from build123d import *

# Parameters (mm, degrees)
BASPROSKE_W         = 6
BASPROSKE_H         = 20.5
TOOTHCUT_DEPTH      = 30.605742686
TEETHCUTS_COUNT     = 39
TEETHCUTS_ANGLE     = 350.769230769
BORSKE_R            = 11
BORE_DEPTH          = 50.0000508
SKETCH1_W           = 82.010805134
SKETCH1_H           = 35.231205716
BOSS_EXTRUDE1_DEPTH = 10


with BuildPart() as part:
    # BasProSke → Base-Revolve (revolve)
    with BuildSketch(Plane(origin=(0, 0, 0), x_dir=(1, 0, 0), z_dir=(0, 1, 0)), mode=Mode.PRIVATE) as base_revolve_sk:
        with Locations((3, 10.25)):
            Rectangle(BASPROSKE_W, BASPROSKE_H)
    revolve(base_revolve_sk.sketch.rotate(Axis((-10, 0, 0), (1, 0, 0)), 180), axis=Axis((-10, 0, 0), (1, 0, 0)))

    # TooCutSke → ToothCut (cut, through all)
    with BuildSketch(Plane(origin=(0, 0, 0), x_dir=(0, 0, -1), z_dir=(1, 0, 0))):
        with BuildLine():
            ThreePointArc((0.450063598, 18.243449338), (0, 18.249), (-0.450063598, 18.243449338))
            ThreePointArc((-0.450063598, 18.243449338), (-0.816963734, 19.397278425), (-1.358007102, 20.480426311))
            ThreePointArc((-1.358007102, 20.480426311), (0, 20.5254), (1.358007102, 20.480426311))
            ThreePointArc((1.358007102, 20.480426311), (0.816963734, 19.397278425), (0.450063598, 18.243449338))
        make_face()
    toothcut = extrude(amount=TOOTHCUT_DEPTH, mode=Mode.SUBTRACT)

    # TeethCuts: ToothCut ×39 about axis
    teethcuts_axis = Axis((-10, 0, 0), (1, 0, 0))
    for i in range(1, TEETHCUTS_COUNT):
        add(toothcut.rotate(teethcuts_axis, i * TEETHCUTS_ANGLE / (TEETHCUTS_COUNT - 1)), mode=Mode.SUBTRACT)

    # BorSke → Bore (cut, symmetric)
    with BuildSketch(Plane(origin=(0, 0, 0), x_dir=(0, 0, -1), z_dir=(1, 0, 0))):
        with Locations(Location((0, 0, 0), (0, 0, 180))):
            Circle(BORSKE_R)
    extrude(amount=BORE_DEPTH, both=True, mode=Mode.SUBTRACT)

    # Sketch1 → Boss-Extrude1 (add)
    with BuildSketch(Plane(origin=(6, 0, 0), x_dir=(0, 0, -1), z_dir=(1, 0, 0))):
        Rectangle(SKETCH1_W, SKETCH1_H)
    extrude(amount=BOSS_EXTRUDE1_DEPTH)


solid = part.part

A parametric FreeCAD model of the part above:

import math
import FreeCAD as App
import Part
import Sketcher

doc = App.newDocument("Part")
params = doc.addObject("Spreadsheet::Sheet", "Params")
for row, (alias, value) in enumerate([
    ("sketch1_width", "6 mm"),
    ("sketch1_height", "20.5 mm"),
    ("revolution_angle", "360 deg"),
    ("sketch2_radius", "7.8 mm"),
    ("sketch3_diameter", "22 mm"),
    ("pocket2_length", "100.000102 mm"),
    ("pad1_length", "10 mm"),
], start=1):
    params.set(f"A{row}", alias)
    params.set(f"B{row}", "=" + value)
    params.setAlias(f"B{row}", alias)

body = doc.addObject("PartDesign::Body", "Body")

# Sketch on XZ plane
sketch1 = body.newObject("Sketcher::SketchObject", "Sketch")
sketch1.AttachmentSupport = (doc.getObject("XZ_Plane"), [""])
sketch1.MapMode = "FlatFace"
sketch1.addGeometry([
    Part.LineSegment(App.Vector(0, -20.5, 0), App.Vector(0, 0, 0)),
    Part.LineSegment(App.Vector(0, 0, 0), App.Vector(6, 0, 0)),
    Part.LineSegment(App.Vector(6, 0, 0), App.Vector(6, -20.5, 0)),
    Part.LineSegment(App.Vector(6, -20.5, 0), App.Vector(0, -20.5, 0)),
], False)
sketch1.addConstraint([
    Sketcher.Constraint("Coincident", 0, 2, 1, 1),
    Sketcher.Constraint("Coincident", 1, 2, 2, 1),
    Sketcher.Constraint("Coincident", 2, 2, 3, 1),
    Sketcher.Constraint("Coincident", 3, 2, 0, 1),
    Sketcher.Constraint("Vertical", 0),
    Sketcher.Constraint("Horizontal", 1),
    Sketcher.Constraint("Vertical", 2),
    Sketcher.Constraint("Horizontal", 3),
    Sketcher.Constraint("Coincident", 0, 2, -1, 1),
    Sketcher.Constraint("DistanceX", 1, 1, 1, 2, 6.0),
    Sketcher.Constraint("DistanceY", 0, 1, 0, 2, 20.5),
])
sketch1.setExpression("Constraints[9]", "Params.sketch1_width")
sketch1.setExpression("Constraints[10]", "Params.sketch1_height")
revolution = body.newObject("PartDesign::Revolution", "Revolution")
revolution.Profile = sketch1
revolution.ReferenceAxis = (sketch1, ["H_Axis"])
revolution.setExpression("Angle", "Params.revolution_angle")

# Sketch on YZ plane
sketch2 = body.newObject("Sketcher::SketchObject", "Sketch001")
sketch2.AttachmentSupport = (doc.getObject("YZ_Plane"), [""])
sketch2.MapMode = "FlatFace"
sketch2.addGeometry([
    Part.ArcOfCircle(Part.Circle(App.Vector(0.000001, 0, 0), App.Vector(0, 0, 1), 18.248999), math.radians(-1.413193), math.radians(1.413193)),
    Part.ArcOfCircle(Part.Circle(App.Vector(16.463835, -8.044336, 0), App.Vector(0, 0, 1), 7.8), math.radians(59.006046), math.radians(76.811486)),
    Part.ArcOfCircle(Part.Circle(App.Vector(0, 0, 0), App.Vector(0, 0, 1), 20.5254), math.radians(-3.79359), math.radians(3.79359)),
    Part.ArcOfCircle(Part.Circle(App.Vector(16.463835, 8.044336, 0), App.Vector(0, 0, 1), 7.8), math.radians(-76.811486), math.radians(-59.006046)),
], False)
sketch2.addConstraint([
    Sketcher.Constraint("Coincident", 0, 1, 1, 2),
    Sketcher.Constraint("Coincident", 1, 1, 2, 1),
    Sketcher.Constraint("Coincident", 2, 2, 3, 2),
    Sketcher.Constraint("Coincident", 3, 1, 0, 2),
    Sketcher.Constraint("Coincident", 0, 3, -1, 1),
    Sketcher.Constraint("Coincident", 2, 3, -1, 1),
    Sketcher.Constraint("Equal", 1, 3),
    Sketcher.Constraint("Symmetric", 1, 3, 3, 3, -1),
    Sketcher.Constraint("Radius", 1, 7.8),
    Sketcher.Constraint("Radius", 0, 18.248999),
    Sketcher.Constraint("Radius", 2, 20.5254),
    Sketcher.Constraint("DistanceY", 0, 1, 3, 3, 8.4944),
    Sketcher.Constraint("DistanceY", 1, 3, 3, 3, 16.088672),
])
sketch2.setExpression("Constraints[8]", "Params.sketch2_radius")
pocket1 = body.newObject("PartDesign::Pocket", "Pocket")
pocket1.Profile = sketch2
pocket1.Type = "ThroughAll"
pocket1.Reversed = True
doc.recompute()

polarpattern = body.newObject("PartDesign::PolarPattern", "PolarPattern")
polarpattern.Originals = [pocket1]
polarpattern.Axis = (doc.getObject("X_Axis"), [""])
polarpattern.Angle = 360
polarpattern.Occurrences = 39
body.Tip = polarpattern

# Sketch on YZ plane
sketch3 = body.newObject("Sketcher::SketchObject", "Sketch002")
sketch3.AttachmentSupport = (doc.getObject("YZ_Plane"), [""])
sketch3.MapMode = "FlatFace"
sketch3.addGeometry(Part.Circle(App.Vector(0, 0, 0), App.Vector(0, 0, 1), 11), False)
sketch3.addConstraint([
    Sketcher.Constraint("Coincident", 0, 3, -1, 1),
    Sketcher.Constraint("Diameter", 0, 22.0),
])
sketch3.setExpression("Constraints[1]", "Params.sketch3_diameter")
pocket2 = body.newObject("PartDesign::Pocket", "Pocket001")
pocket2.Profile = sketch3
pocket2.setExpression("Length", "Params.pocket2_length")
pocket2.Midplane = True

# Sketch on YZ plane
sketch4 = body.newObject("Sketcher::SketchObject", "Sketch003")
sketch4.AttachmentSupport = (doc.getObject("YZ_Plane"), [""])
sketch4.MapMode = "FlatFace"
sketch4.AttachmentOffset = App.Placement(App.Vector(0, 0, 6), App.Rotation())
sketch4.addGeometry([
    Part.LineSegment(App.Vector(17.615603, 41.005403, 0), App.Vector(-17.615603, 41.005403, 0)),
    Part.LineSegment(App.Vector(-17.615603, 41.005403, 0), App.Vector(-17.615603, -41.005403, 0)),
    Part.LineSegment(App.Vector(-17.615603, -41.005403, 0), App.Vector(17.615603, -41.005403, 0)),
    Part.LineSegment(App.Vector(17.615603, -41.005403, 0), App.Vector(17.615603, 41.005403, 0)),
], False)
sketch4.addConstraint([
    Sketcher.Constraint("Coincident", 0, 2, 1, 1),
    Sketcher.Constraint("Coincident", 1, 2, 2, 1),
    Sketcher.Constraint("Coincident", 2, 2, 3, 1),
    Sketcher.Constraint("Coincident", 3, 2, 0, 1),
    Sketcher.Constraint("Horizontal", 0),
    Sketcher.Constraint("Vertical", 1),
    Sketcher.Constraint("Horizontal", 2),
    Sketcher.Constraint("Vertical", 3),
    Sketcher.Constraint("Symmetric", 0, 2, 2, 2, -1, 1),
    Sketcher.Constraint("DistanceX", 0, 2, 0, 1, 35.231206),
    Sketcher.Constraint("DistanceY", 1, 2, 1, 1, 82.010805),
])
pad1 = body.newObject("PartDesign::Pad", "Pad")
pad1.Profile = sketch4
pad1.setExpression("Length", "Params.pad1_length")

doc.recompute()
